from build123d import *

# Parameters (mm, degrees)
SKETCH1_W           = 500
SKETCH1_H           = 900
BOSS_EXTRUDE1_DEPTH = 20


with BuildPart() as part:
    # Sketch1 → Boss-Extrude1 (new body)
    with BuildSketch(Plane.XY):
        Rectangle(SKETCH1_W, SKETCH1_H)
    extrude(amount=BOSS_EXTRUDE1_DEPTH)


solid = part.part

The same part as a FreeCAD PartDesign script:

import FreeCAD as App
import Part
import Sketcher

V = App.Vector
Q = App.Units.Quantity

doc = App.newDocument("Part")
body = doc.addObject("PartDesign::Body", "Body")

# Sketch on XY plane
sketch1 = body.newObject("Sketcher::SketchObject", "Sketch")
sketch1.AttachmentSupport = (doc.getObject("XY_Plane"), [""])
sketch1.MapMode = "FlatFace"
sketch1.addGeometry([
    Part.LineSegment(V(-250, 450, 0), V(-250, -450, 0)),
    Part.LineSegment(V(-250, -450, 0), V(250, -450, 0)),
    Part.LineSegment(V(250, -450, 0), V(250, 450, 0)),
    Part.LineSegment(V(250, 450, 0), V(-250, 450, 0)),
], False)
sketch1.addConstraint([
    Sketcher.Constraint("Coincident", 0, 2, 1, 1),
    Sketcher.Constraint("Coincident", 1, 2, 2, 1),
    Sketcher.Constraint("Coincident", 2, 2, 3, 1),
    Sketcher.Constraint("Coincident", 3, 2, 0, 1),
    Sketcher.Constraint("Vertical", 0),
    Sketcher.Constraint("Horizontal", 1),
    Sketcher.Constraint("Vertical", 2),
    Sketcher.Constraint("Horizontal", 3),
    Sketcher.Constraint("Symmetric", 0, 2, 2, 2, -1, 1),
    Sketcher.Constraint("DistanceX", 1, 1, 1, 2, Q("500 mm")),
    Sketcher.Constraint("DistanceY", 0, 2, 0, 1, Q("900 mm")),
])
pad1 = body.newObject("PartDesign::Pad", "Pad")
pad1.Profile = sketch1
pad1.Length = 20

doc.recompute()
